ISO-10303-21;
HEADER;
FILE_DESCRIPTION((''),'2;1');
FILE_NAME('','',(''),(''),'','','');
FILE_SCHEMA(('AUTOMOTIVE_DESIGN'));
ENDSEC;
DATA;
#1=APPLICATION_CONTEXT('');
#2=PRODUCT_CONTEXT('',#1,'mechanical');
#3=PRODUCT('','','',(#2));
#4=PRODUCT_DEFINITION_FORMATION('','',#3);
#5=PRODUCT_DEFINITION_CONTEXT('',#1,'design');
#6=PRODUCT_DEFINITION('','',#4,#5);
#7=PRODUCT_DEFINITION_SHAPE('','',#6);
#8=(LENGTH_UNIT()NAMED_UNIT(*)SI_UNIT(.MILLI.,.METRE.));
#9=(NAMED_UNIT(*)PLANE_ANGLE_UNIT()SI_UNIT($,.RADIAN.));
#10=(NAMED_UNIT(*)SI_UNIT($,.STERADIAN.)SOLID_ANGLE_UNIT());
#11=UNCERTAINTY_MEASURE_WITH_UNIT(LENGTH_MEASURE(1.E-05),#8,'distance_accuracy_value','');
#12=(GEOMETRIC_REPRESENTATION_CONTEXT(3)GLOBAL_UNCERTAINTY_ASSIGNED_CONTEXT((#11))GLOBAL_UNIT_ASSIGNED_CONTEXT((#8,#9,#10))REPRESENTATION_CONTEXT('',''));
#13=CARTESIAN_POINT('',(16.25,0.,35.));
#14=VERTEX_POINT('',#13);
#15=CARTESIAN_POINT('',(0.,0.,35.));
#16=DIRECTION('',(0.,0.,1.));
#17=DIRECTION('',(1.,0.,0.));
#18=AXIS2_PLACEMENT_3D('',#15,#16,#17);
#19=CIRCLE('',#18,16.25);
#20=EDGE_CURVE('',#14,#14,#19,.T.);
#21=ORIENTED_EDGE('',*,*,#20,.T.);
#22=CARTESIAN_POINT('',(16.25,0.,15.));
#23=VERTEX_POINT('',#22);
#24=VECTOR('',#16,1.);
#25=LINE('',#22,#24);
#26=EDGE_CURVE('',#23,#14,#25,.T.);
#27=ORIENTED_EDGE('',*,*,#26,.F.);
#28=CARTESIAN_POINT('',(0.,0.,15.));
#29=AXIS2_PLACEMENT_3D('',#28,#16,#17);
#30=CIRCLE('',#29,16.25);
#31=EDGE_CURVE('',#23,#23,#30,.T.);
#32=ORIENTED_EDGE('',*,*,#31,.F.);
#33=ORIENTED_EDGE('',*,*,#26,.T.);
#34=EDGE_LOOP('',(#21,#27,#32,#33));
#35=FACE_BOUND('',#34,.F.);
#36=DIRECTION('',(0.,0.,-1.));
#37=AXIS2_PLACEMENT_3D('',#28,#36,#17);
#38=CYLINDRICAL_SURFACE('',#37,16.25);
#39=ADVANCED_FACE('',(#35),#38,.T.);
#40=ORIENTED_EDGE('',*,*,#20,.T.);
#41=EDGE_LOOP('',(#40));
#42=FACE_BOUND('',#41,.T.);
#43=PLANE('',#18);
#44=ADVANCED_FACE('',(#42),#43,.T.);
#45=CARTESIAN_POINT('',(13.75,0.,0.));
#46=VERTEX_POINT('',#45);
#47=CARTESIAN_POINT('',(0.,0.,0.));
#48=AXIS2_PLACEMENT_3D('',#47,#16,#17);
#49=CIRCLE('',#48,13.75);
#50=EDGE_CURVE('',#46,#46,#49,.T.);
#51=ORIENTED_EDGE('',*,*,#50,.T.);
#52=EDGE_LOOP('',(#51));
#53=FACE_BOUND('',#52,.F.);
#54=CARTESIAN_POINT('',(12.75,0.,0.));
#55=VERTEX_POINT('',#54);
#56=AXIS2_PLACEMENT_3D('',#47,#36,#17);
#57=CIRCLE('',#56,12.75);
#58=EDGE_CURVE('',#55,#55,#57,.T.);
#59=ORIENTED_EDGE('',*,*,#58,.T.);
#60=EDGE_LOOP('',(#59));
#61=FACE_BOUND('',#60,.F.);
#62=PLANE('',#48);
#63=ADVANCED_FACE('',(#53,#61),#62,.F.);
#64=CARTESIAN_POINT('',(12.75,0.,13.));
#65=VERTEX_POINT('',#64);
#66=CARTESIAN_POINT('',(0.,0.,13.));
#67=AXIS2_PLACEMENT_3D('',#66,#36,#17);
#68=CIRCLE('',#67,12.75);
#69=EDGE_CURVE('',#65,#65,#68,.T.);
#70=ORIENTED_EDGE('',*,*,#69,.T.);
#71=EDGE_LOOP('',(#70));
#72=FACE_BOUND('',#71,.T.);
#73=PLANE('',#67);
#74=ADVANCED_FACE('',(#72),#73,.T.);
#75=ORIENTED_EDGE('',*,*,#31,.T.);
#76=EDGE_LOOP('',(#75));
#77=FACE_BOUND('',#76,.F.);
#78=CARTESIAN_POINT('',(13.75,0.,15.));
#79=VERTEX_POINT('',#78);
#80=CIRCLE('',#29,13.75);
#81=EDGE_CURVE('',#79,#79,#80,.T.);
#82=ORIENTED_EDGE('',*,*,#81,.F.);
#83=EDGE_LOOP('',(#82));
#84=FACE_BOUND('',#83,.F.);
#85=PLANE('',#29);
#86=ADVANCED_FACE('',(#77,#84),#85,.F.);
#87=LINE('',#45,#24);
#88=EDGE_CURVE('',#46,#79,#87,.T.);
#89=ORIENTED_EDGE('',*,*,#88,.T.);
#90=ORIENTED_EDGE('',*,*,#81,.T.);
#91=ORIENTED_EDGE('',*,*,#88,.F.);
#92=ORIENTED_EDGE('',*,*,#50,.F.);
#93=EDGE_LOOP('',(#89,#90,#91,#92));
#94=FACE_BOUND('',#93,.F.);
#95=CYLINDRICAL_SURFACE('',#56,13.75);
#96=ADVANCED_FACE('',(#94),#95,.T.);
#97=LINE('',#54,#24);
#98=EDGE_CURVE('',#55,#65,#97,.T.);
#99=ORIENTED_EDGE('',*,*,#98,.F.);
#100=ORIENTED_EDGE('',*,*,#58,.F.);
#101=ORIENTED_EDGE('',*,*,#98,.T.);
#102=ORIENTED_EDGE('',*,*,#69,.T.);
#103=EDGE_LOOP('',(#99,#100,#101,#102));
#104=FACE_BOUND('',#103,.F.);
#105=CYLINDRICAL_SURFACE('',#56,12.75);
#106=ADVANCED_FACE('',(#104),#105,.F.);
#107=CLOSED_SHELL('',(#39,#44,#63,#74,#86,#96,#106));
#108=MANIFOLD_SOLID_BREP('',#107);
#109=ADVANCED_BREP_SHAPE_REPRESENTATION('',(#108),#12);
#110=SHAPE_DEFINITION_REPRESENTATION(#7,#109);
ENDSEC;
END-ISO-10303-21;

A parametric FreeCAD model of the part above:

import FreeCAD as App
import Part
import Sketcher

doc = App.newDocument("Part")
body = doc.addObject("PartDesign::Body", "Body")

sketch1 = body.newObject("Sketcher::SketchObject", "Sketch")
sketch1.AttachmentSupport = (doc.getObject("XY_Plane"), [""])
sketch1.MapMode = "FlatFace"
sketch1.addGeometry(Part.Circle(App.Vector(0, 0, 0), App.Vector(0, 0, 1), 14), False)
sketch1.addConstraint([
    Sketcher.Constraint("Coincident", 0, 3, -1, 1),
    Sketcher.Constraint("Diameter", 0, 27.5),
])
pad1 = body.newObject("PartDesign::Pad", "Pad")
pad1.Profile = sketch1
pad1.Length = 15

sketch2 = body.newObject("Sketcher::SketchObject", "Sketch001")
sketch2.AttachmentSupport = (doc.getObject("XY_Plane"), [""])
sketch2.MapMode = "FlatFace"
sketch2.addGeometry(Part.Circle(App.Vector(0, 0, 0), App.Vector(0, 0, 1), 13), False)
sketch2.addConstraint([
    Sketcher.Constraint("Coincident", 0, 3, -1, 1),
    Sketcher.Constraint("Diameter", 0, 25.5),
])
pocket1 = body.newObject("PartDesign::Pocket", "Pocket")
pocket1.Profile = sketch2
pocket1.Length = 13
pocket1.Reversed = True

sketch3 = body.newObject("Sketcher::SketchObject", "Sketch002")
sketch3.AttachmentSupport = (doc.getObject("XY_Plane"), [""])
sketch3.MapMode = "FlatFace"
sketch3.AttachmentOffset = App.Placement(App.Vector(0, 0, 15), App.Rotation())
sketch3.addGeometry(Part.Circle(App.Vector(0, 0, 0), App.Vector(0, 0, 1), 16), False)
sketch3.addConstraint([
    Sketcher.Constraint("Coincident", 0, 3, -1, 1),
    Sketcher.Constraint("Diameter", 0, 32.5),
])
pad2 = body.newObject("PartDesign::Pad", "Pad001")
pad2.Profile = sketch3
pad2.Length = 20

doc.recompute()
